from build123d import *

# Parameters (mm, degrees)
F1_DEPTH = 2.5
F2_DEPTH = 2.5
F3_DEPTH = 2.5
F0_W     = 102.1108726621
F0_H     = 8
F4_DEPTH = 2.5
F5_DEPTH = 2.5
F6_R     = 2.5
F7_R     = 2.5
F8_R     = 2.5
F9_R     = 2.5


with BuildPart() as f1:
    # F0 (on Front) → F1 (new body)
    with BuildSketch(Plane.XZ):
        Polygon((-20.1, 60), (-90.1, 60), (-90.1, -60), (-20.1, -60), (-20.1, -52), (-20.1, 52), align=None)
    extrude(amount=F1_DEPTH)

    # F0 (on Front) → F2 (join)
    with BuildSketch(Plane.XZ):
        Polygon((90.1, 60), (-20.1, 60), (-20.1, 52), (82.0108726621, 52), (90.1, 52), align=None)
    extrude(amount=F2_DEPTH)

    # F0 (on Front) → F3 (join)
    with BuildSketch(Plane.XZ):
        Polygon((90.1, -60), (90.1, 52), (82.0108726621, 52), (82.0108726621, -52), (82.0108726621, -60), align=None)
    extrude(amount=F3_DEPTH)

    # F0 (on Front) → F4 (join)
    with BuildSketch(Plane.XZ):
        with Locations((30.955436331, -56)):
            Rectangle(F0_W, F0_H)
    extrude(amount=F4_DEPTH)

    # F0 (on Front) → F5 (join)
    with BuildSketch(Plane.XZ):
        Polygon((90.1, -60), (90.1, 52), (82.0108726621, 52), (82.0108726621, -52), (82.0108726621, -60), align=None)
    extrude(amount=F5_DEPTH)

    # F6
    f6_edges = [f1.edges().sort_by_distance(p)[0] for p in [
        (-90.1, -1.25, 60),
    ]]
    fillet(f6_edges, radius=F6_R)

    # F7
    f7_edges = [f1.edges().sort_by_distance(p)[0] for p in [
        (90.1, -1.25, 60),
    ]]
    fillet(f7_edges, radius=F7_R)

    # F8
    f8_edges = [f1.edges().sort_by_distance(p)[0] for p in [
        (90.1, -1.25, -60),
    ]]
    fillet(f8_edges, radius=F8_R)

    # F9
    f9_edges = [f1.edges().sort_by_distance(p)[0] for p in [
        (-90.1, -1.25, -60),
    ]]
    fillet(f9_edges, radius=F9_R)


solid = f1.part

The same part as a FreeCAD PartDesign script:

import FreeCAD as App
import Part
import Sketcher
from FreeCAD import Vector


def edges_at(feature, points):
    """Names of the edges that pass closest to the given points."""
    edges = feature.Shape.Edges
    near = lambda p: min(range(len(edges)), key=lambda i: edges[i].distToShape(Part.Vertex(*p))[0])
    return sorted({f"Edge{near(p) + 1}" for p in points})

doc = App.newDocument("Part")
params = doc.addObject("Spreadsheet::Sheet", "Params")
for row, (alias, value) in enumerate([
    ("sketch1_width", "70 mm"),
    ("sketch1_height", "120 mm"),
    ("pad1_length", "2.5 mm"),
    ("sketch2_height", "8 mm"),
    ("sketch2_width", "110.2 mm"),
    ("pad2_length", "2.5 mm"),
    ("sketch3_height", "112 mm"),
    ("pad3_length", "2.5 mm"),
    ("sketch4_height", "8 mm"),
    ("pad4_length", "2.5 mm"),
    ("sketch5_height", "112 mm"),
    ("pad5_length", "2.5 mm"),
    ("fillet_radius", "2.5 mm"),
    ("fillet2_radius", "2.5 mm"),
    ("fillet3_radius", "2.5 mm"),
    ("fillet4_radius", "2.5 mm"),
], start=1):
    params.set(f"A{row}", alias)
    params.set(f"B{row}", "=" + value)
    params.setAlias(f"B{row}", alias)

body = doc.addObject("PartDesign::Body", "Body")

# Sketch on XZ plane
sketch1 = body.newObject("Sketcher::SketchObject", "Sketch")
sketch1.AttachmentSupport = (doc.getObject("XZ_Plane"), [""])
sketch1.MapMode = "FlatFace"
sketch1.addGeometry([
    Part.LineSegment(Vector(-20, 60, 0), Vector(-90, 60, 0)),
    Part.LineSegment(Vector(-90, 60, 0), Vector(-90, -60, 0)),
    Part.LineSegment(Vector(-90, -60, 0), Vector(-20, -60, 0)),
    Part.LineSegment(Vector(-20, -60, 0), Vector(-20, 60, 0)),
], False)
sketch1.addConstraint([
    Sketcher.Constraint("Coincident", 0, 2, 1, 1),
    Sketcher.Constraint("Coincident", 1, 2, 2, 1),
    Sketcher.Constraint("Coincident", 2, 2, 3, 1),
    Sketcher.Constraint("Coincident", 3, 2, 0, 1),
    Sketcher.Constraint("Horizontal", 0),
    Sketcher.Constraint("Vertical", 1),
    Sketcher.Constraint("Horizontal", 2),
    Sketcher.Constraint("Vertical", 3),
    Sketcher.Constraint("DistanceX", 0, 2, 0, 1, 70.0),
    Sketcher.Constraint("DistanceY", 1, 2, 1, 1, 120.0),
    Sketcher.Constraint("DistanceY", -1, 1, 0, 2, 60.0),
    Sketcher.Constraint("DistanceX", 0, 2, -1, 1, 90.1),
])
sketch1.setExpression("Constraints[8]", "Params.sketch1_width")
sketch1.setExpression("Constraints[9]", "Params.sketch1_height")
pad1 = body.newObject("PartDesign::Pad", "Pad")
pad1.Profile = sketch1
pad1.setExpression("Length", "Params.pad1_length")

# Sketch on XZ plane
sketch2 = body.newObject("Sketcher::SketchObject", "Sketch001")
sketch2.AttachmentSupport = (doc.getObject("XZ_Plane"), [""])
sketch2.MapMode = "FlatFace"
sketch2.addGeometry([
    Part.LineSegment(Vector(90, 60, 0), Vector(-20, 60, 0)),
    Part.LineSegment(Vector(-20, 60, 0), Vector(-20, 52, 0)),
    Part.LineSegment(Vector(-20, 52, 0), Vector(90, 52, 0)),
    Part.LineSegment(Vector(90, 52, 0), Vector(90, 60, 0)),
], False)
sketch2.addConstraint([
    Sketcher.Constraint("Coincident", 0, 2, 1, 1),
    Sketcher.Constraint("Coincident", 1, 2, 2, 1),
    Sketcher.Constraint("Coincident", 2, 2, 3, 1),
    Sketcher.Constraint("Coincident", 3, 2, 0, 1),
    Sketcher.Constraint("Horizontal", 0),
    Sketcher.Constraint("Vertical", 1),
    Sketcher.Constraint("Horizontal", 2),
    Sketcher.Constraint("Vertical", 3),
    Sketcher.Constraint("DistanceY", 1, 2, 1, 1, 8.0),
    Sketcher.Constraint("DistanceX", 0, 2, 0, 1, 110.2),
    Sketcher.Constraint("DistanceY", -1, 1, 0, 2, 60.0),
    Sketcher.Constraint("DistanceX", 0, 2, -1, 1, 20.1),
])
sketch2.setExpression("Constraints[8]", "Params.sketch2_height")
sketch2.setExpression("Constraints[9]", "Params.sketch2_width")
pad2 = body.newObject("PartDesign::Pad", "Pad001")
pad2.Profile = sketch2
pad2.setExpression("Length", "Params.pad2_length")

# Sketch on XZ plane
sketch3 = body.newObject("Sketcher::SketchObject", "Sketch002")
sketch3.AttachmentSupport = (doc.getObject("XZ_Plane"), [""])
sketch3.MapMode = "FlatFace"
sketch3.addGeometry([
    Part.LineSegment(Vector(90, -60, 0), Vector(90, 52, 0)),
    Part.LineSegment(Vector(90, 52, 0), Vector(82, 52, 0)),
    Part.LineSegment(Vector(82, 52, 0), Vector(82, -60, 0)),
    Part.LineSegment(Vector(82, -60, 0), Vector(90, -60, 0)),
], False)
sketch3.addConstraint([
    Sketcher.Constraint("Coincident", 0, 2, 1, 1),
    Sketcher.Constraint("Coincident", 1, 2, 2, 1),
    Sketcher.Constraint("Coincident", 2, 2, 3, 1),
    Sketcher.Constraint("Coincident", 3, 2, 0, 1),
    Sketcher.Constraint("Vertical", 0),
    Sketcher.Constraint("Horizontal", 1),
    Sketcher.Constraint("Vertical", 2),
    Sketcher.Constraint("Horizontal", 3),
    Sketcher.Constraint("DistanceY", 0, 1, 0, 2, 112.0),
    Sketcher.Constraint("DistanceY", -1, 1, 0, 2, 52.0),
    Sketcher.Constraint("DistanceX", -1, 1, 0, 2, 90.1),
    Sketcher.Constraint("DistanceX", 1, 2, 1, 1, 8.089127),
])
sketch3.setExpression("Constraints[8]", "Params.sketch3_height")
pad3 = body.newObject("PartDesign::Pad", "Pad002")
pad3.Profile = sketch3
pad3.setExpression("Length", "Params.pad3_length")

# Sketch on XZ plane
sketch4 = body.newObject("Sketcher::SketchObject", "Sketch003")
sketch4.AttachmentSupport = (doc.getObject("XZ_Plane"), [""])
sketch4.MapMode = "FlatFace"
sketch4.addGeometry([
    Part.LineSegment(Vector(-20, -52, 0), Vector(-20, -60, 0)),
    Part.LineSegment(Vector(-20, -60, 0), Vector(82, -60, 0)),
    Part.LineSegment(Vector(82, -60, 0), Vector(82, -52, 0)),
    Part.LineSegment(Vector(82, -52, 0), Vector(-20, -52, 0)),
], False)
sketch4.addConstraint([
    Sketcher.Constraint("Coincident", 0, 2, 1, 1),
    Sketcher.Constraint("Coincident", 1, 2, 2, 1),
    Sketcher.Constraint("Coincident", 2, 2, 3, 1),
    Sketcher.Constraint("Coincident", 3, 2, 0, 1),
    Sketcher.Constraint("Vertical", 0),
    Sketcher.Constraint("Horizontal", 1),
    Sketcher.Constraint("Vertical", 2),
    Sketcher.Constraint("Horizontal", 3),
    Sketcher.Constraint("DistanceY", 0, 2, 0, 1, 8.0),
    Sketcher.Constraint("DistanceY", 0, 2, -1, 1, 60.0),
    Sketcher.Constraint("DistanceX", 0, 2, -1, 1, 20.1),
    Sketcher.Constraint("DistanceX", 1, 1, 1, 2, 102.110873),
])
sketch4.setExpression("Constraints[8]", "Params.sketch4_height")
pad4 = body.newObject("PartDesign::Pad", "Pad003")
pad4.Profile = sketch4
pad4.setExpression("Length", "Params.pad4_length")

# Sketch on XZ plane
sketch5 = body.newObject("Sketcher::SketchObject", "Sketch004")
sketch5.AttachmentSupport = (doc.getObject("XZ_Plane"), [""])
sketch5.MapMode = "FlatFace"
sketch5.addGeometry([
    Part.LineSegment(Vector(90, -60, 0), Vector(90, 52, 0)),
    Part.LineSegment(Vector(90, 52, 0), Vector(82, 52, 0)),
    Part.LineSegment(Vector(82, 52, 0), Vector(82, -60, 0)),
    Part.LineSegment(Vector(82, -60, 0), Vector(90, -60, 0)),
], False)
sketch5.addConstraint([
    Sketcher.Constraint("Coincident", 0, 2, 1, 1),
    Sketcher.Constraint("Coincident", 1, 2, 2, 1),
    Sketcher.Constraint("Coincident", 2, 2, 3, 1),
    Sketcher.Constraint("Coincident", 3, 2, 0, 1),
    Sketcher.Constraint("Vertical", 0),
    Sketcher.Constraint("Horizontal", 1),
    Sketcher.Constraint("Vertical", 2),
    Sketcher.Constraint("Horizontal", 3),
    Sketcher.Constraint("DistanceY", 0, 1, 0, 2, 112.0),
    Sketcher.Constraint("DistanceY", -1, 1, 0, 2, 52.0),
    Sketcher.Constraint("DistanceX", -1, 1, 0, 2, 90.1),
    Sketcher.Constraint("DistanceX", 1, 2, 1, 1, 8.089127),
])
sketch5.setExpression("Constraints[8]", "Params.sketch5_height")
pad5 = body.newObject("PartDesign::Pad", "Pad004")
pad5.Profile = sketch5
pad5.setExpression("Length", "Params.pad5_length")
doc.recompute()

fillet = body.newObject("PartDesign::Fillet", "Fillet")
fillet.Base = (pad5, edges_at(pad5, [(-90.1, -1.25, 60)]))
fillet.setExpression("Radius", "Params.fillet_radius")
doc.recompute()

fillet2 = body.newObject("PartDesign::Fillet", "Fillet001")
fillet2.Base = (fillet, edges_at(fillet, [(90.1, -1.25, 60)]))
fillet2.setExpression("Radius", "Params.fillet2_radius")
doc.recompute()

fillet3 = body.newObject("PartDesign::Fillet", "Fillet002")
fillet3.Base = (fillet2, edges_at(fillet2, [(90.1, -1.25, -60)]))
fillet3.setExpression("Radius", "Params.fillet3_radius")
doc.recompute()

fillet4 = body.newObject("PartDesign::Fillet", "Fillet003")
fillet4.Base = (fillet3, edges_at(fillet3, [(-90.1, -1.25, -60)]))
fillet4.setExpression("Radius", "Params.fillet4_radius")

doc.recompute()
